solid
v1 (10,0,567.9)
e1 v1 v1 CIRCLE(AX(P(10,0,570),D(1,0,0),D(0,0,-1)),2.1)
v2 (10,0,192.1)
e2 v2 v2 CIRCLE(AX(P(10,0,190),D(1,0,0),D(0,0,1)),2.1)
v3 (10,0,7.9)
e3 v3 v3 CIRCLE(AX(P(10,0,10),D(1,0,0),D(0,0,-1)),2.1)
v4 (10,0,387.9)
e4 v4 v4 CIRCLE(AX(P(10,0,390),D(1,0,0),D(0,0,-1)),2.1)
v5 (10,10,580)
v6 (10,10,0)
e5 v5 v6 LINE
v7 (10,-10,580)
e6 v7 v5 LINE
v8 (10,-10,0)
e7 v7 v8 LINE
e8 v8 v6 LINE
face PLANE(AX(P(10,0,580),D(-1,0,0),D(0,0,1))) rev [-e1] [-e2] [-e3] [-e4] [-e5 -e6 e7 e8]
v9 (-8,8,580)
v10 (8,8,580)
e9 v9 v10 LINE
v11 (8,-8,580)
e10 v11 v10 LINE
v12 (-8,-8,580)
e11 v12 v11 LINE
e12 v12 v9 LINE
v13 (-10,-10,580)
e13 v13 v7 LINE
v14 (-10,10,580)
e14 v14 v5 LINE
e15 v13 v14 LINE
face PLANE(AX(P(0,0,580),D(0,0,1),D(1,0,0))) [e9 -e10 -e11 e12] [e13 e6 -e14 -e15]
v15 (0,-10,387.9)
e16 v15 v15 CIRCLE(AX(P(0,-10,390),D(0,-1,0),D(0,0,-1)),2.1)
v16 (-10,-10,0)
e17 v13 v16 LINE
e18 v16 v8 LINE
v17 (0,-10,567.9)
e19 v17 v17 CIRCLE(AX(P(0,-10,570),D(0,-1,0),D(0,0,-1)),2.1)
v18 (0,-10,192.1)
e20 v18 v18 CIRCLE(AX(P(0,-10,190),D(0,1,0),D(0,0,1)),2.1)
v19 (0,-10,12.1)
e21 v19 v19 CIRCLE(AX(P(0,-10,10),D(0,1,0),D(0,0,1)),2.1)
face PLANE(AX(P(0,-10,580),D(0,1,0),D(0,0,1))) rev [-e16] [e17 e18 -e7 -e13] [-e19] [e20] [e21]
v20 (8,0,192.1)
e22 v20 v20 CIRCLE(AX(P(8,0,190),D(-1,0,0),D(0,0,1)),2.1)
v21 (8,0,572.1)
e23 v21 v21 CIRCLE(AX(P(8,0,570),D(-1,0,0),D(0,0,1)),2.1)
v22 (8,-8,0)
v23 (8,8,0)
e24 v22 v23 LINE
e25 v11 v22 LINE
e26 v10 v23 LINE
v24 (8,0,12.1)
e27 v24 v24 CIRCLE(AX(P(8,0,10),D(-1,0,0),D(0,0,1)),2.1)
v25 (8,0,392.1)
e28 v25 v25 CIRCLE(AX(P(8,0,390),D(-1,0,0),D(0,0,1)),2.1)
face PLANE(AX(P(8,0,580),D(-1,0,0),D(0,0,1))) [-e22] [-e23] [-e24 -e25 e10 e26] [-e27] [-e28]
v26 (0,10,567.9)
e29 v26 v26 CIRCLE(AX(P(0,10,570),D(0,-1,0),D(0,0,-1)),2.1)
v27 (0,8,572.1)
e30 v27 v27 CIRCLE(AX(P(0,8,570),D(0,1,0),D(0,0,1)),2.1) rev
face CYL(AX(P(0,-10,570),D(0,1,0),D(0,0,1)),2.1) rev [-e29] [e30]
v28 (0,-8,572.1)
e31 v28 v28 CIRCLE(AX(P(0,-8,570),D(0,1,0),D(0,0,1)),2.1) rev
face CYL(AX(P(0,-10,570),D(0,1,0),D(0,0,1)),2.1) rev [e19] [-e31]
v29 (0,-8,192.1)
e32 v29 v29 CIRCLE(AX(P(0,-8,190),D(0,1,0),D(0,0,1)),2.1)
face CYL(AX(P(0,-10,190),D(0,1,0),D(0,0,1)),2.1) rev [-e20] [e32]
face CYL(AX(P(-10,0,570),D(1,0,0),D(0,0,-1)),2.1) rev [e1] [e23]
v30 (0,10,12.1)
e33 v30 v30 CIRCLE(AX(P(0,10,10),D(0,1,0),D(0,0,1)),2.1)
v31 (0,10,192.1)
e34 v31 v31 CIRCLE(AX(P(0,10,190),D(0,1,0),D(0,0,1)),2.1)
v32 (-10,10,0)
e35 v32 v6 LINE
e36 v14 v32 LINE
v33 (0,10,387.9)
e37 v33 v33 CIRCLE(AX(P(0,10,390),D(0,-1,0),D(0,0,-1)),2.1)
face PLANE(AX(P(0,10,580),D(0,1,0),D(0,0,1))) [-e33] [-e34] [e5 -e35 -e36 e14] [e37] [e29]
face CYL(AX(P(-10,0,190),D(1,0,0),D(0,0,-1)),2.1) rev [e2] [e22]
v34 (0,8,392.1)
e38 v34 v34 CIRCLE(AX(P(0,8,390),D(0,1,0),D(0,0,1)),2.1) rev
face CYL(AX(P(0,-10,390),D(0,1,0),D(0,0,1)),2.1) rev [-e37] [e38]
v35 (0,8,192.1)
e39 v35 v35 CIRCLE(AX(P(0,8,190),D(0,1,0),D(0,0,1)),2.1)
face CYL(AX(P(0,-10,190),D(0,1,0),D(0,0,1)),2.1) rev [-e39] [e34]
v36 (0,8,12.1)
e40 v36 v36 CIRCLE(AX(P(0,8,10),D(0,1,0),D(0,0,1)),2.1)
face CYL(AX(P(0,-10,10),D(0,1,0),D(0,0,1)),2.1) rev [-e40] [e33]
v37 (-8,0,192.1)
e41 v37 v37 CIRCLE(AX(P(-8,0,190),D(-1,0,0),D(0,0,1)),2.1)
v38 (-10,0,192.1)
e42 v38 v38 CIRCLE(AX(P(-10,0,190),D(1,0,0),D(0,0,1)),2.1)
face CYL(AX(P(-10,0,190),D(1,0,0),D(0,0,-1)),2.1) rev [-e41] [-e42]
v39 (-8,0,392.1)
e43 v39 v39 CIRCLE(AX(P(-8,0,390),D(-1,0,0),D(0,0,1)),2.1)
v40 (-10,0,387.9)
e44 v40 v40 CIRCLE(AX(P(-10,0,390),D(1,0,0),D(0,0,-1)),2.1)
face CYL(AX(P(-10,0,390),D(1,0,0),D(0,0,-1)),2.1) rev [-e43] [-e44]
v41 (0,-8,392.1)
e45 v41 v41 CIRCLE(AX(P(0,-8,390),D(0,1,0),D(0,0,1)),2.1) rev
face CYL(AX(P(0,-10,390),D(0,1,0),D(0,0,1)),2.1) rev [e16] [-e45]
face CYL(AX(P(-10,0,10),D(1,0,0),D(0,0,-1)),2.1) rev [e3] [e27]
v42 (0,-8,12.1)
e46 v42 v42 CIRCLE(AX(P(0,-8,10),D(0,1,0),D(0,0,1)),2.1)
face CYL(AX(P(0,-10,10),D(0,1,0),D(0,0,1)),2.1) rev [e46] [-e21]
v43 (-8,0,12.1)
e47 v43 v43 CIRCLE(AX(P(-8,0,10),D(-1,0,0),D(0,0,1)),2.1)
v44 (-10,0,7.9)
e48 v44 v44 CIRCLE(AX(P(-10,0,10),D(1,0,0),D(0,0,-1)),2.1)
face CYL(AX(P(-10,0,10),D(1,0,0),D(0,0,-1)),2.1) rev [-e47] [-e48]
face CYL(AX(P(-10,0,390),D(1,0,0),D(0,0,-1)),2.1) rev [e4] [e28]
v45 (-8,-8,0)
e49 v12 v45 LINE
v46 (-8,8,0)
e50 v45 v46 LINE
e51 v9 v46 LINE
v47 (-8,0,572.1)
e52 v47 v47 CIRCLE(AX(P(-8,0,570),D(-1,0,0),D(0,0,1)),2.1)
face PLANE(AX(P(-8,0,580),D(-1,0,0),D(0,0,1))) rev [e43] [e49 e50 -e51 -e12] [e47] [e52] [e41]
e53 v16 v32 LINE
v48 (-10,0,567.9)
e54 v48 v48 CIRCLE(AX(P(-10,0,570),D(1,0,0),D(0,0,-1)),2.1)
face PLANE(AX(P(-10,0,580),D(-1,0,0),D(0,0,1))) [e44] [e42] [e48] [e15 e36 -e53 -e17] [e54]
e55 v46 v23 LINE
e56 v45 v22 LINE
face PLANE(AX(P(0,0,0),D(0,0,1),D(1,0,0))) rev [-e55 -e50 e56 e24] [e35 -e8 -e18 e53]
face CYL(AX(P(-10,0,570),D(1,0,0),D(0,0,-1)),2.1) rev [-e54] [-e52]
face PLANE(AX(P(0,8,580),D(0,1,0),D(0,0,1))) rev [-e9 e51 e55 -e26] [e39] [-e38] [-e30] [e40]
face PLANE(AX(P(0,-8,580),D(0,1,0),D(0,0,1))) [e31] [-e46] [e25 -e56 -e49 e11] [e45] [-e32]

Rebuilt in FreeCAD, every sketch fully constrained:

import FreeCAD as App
import Part
import Sketcher

doc = App.newDocument("Part")
params = doc.addObject("Spreadsheet::Sheet", "Params")
for row, (alias, value) in enumerate([
    ("sketch1_width", "20 mm"),
    ("sketch1_width2", "16 mm"),
    ("pad1_length", "580 mm"),
    ("sketch2_diameter", "4.2 mm"),
    ("pocket1_length", "20 mm"),
    ("sketch3_diameter", "4.2 mm"),
], start=1):
    params.set(f"A{row}", alias)
    params.set(f"B{row}", "=" + value)
    params.setAlias(f"B{row}", alias)

body = doc.addObject("PartDesign::Body", "Body")

sketch1 = body.newObject("Sketcher::SketchObject", "Sketch")
sketch1.AttachmentSupport = (doc.getObject("XY_Plane"), [""])
sketch1.MapMode = "FlatFace"
sketch1.addGeometry([
    Part.LineSegment(App.Vector(-10, 10, 0), App.Vector(-10, -10, 0)),
    Part.LineSegment(App.Vector(-10, -10, 0), App.Vector(10, -10, 0)),
    Part.LineSegment(App.Vector(10, -10, 0), App.Vector(10, 10, 0)),
    Part.LineSegment(App.Vector(10, 10, 0), App.Vector(-10, 10, 0)),
    Part.LineSegment(App.Vector(8, -8, 0), App.Vector(-8, -8, 0)),
    Part.LineSegment(App.Vector(-8, -8, 0), App.Vector(-8, 8, 0)),
    Part.LineSegment(App.Vector(-8, 8, 0), App.Vector(8, 8, 0)),
    Part.LineSegment(App.Vector(8, 8, 0), App.Vector(8, -8, 0)),
], False)
sketch1.addConstraint([
    Sketcher.Constraint("Coincident", 0, 2, 1, 1),
    Sketcher.Constraint("Coincident", 1, 2, 2, 1),
    Sketcher.Constraint("Coincident", 2, 2, 3, 1),
    Sketcher.Constraint("Coincident", 3, 2, 0, 1),
    Sketcher.Constraint("Coincident", 4, 2, 5, 1),
    Sketcher.Constraint("Coincident", 5, 2, 6, 1),
    Sketcher.Constraint("Coincident", 6, 2, 7, 1),
    Sketcher.Constraint("Coincident", 7, 2, 4, 1),
    Sketcher.Constraint("Vertical", 0),
    Sketcher.Constraint("Horizontal", 1),
    Sketcher.Constraint("Vertical", 2),
    Sketcher.Constraint("Horizontal", 3),
    Sketcher.Constraint("Horizontal", 4),
    Sketcher.Constraint("Vertical", 5),
    Sketcher.Constraint("Horizontal", 6),
    Sketcher.Constraint("Vertical", 7),
    Sketcher.Constraint("Symmetric", 0, 2, 2, 2, -1, 1),
    Sketcher.Constraint("Symmetric", 4, 2, 6, 2, -1, 1),
    Sketcher.Constraint("Equal", 3, 0),
    Sketcher.Constraint("Equal", 6, 5),
    Sketcher.Constraint("DistanceX", 1, 1, 1, 2, 20.0),
    Sketcher.Constraint("DistanceX", 4, 2, 4, 1, 16.0),
])
sketch1.setExpression("Constraints[20]", "Params.sketch1_width")
sketch1.setExpression("Constraints[21]", "Params.sketch1_width2")
pad1 = body.newObject("PartDesign::Pad", "Pad")
pad1.Profile = sketch1
pad1.setExpression("Length", "Params.pad1_length")

sketch2 = body.newObject("Sketcher::SketchObject", "Sketch001")
sketch2.AttachmentSupport = (doc.getObject("XZ_Plane"), [""])
sketch2.MapMode = "FlatFace"
sketch2.AttachmentOffset = App.Placement(App.Vector(0, 0, -10), App.Rotation())
sketch2.addGeometry([
    Part.Circle(App.Vector(0, 10, 0), App.Vector(0, 0, 1), 2.1),
    Part.Circle(App.Vector(0, 190, 0), App.Vector(0, 0, 1), 2.1),
], False)
sketch2.addConstraint([
    Sketcher.Constraint("Equal", 0, 1),
    Sketcher.Constraint("PointOnObject", 0, 3, -2),
    Sketcher.Constraint("PointOnObject", 1, 3, -2),
    Sketcher.Constraint("Diameter", 0, 4.2),
    Sketcher.Constraint("DistanceY", -1, 1, 0, 3, 10.0),
    Sketcher.Constraint("DistanceY", -1, 1, 1, 3, 190.0),
])
sketch2.setExpression("Constraints[3]", "Params.sketch2_diameter")
pocket1 = body.newObject("PartDesign::Pocket", "Pocket")
pocket1.Profile = sketch2
pocket1.setExpression("Length", "Params.pocket1_length")
pocket1.Reversed = True
doc.recompute()

datumplane = body.newObject("PartDesign::Plane", "DatumPlane")
datumplane.AttachmentSupport = (doc.getObject("XY_Plane"), [""])
datumplane.MapMode = "FlatFace"
datumplane.AttachmentOffset = App.Placement(App.Vector(0, 0, 290), App.Rotation())
mirrored = body.newObject("PartDesign::Mirrored", "Mirrored")
mirrored.Originals = [pocket1]
mirrored.MirrorPlane = (datumplane, [""])
body.Tip = mirrored

sketch3 = body.newObject("Sketcher::SketchObject", "Sketch002")
sketch3.AttachmentSupport = (doc.getObject("YZ_Plane"), [""])
sketch3.MapMode = "FlatFace"
sketch3.AttachmentOffset = App.Placement(App.Vector(0, 0, 10), App.Rotation())
sketch3.addGeometry([
    Part.Circle(App.Vector(0, 570, 0), App.Vector(0, 0, 1), 2.1),
    Part.Circle(App.Vector(0, 10, 0), App.Vector(0, 0, 1), 2.1),
    Part.Circle(App.Vector(0, 390, 0), App.Vector(0, 0, 1), 2.1),
    Part.Circle(App.Vector(0, 190, 0), App.Vector(0, 0, 1), 2.1),
], False)
sketch3.addConstraint([
    Sketcher.Constraint("Equal", 0, 1),
    Sketcher.Constraint("Equal", 1, 2),
    Sketcher.Constraint("Equal", 2, 3),
    Sketcher.Constraint("PointOnObject", 0, 3, -2),
    Sketcher.Constraint("PointOnObject", 1, 3, -2),
    Sketcher.Constraint("PointOnObject", 2, 3, -2),
    Sketcher.Constraint("PointOnObject", 3, 3, -2),
    Sketcher.Constraint("Diameter", 0, 4.2),
    Sketcher.Constraint("DistanceY", -1, 1, 0, 3, 570.0),
    Sketcher.Constraint("DistanceY", -1, 1, 1, 3, 10.0),
    Sketcher.Constraint("DistanceY", -1, 1, 2, 3, 390.0),
    Sketcher.Constraint("DistanceY", -1, 1, 3, 3, 190.0),
])
sketch3.setExpression("Constraints[7]", "Params.sketch3_diameter")
pocket2 = body.newObject("PartDesign::Pocket", "Pocket001")
pocket2.Profile = sketch3
pocket2.Type = "ThroughAll"

doc.recompute()
